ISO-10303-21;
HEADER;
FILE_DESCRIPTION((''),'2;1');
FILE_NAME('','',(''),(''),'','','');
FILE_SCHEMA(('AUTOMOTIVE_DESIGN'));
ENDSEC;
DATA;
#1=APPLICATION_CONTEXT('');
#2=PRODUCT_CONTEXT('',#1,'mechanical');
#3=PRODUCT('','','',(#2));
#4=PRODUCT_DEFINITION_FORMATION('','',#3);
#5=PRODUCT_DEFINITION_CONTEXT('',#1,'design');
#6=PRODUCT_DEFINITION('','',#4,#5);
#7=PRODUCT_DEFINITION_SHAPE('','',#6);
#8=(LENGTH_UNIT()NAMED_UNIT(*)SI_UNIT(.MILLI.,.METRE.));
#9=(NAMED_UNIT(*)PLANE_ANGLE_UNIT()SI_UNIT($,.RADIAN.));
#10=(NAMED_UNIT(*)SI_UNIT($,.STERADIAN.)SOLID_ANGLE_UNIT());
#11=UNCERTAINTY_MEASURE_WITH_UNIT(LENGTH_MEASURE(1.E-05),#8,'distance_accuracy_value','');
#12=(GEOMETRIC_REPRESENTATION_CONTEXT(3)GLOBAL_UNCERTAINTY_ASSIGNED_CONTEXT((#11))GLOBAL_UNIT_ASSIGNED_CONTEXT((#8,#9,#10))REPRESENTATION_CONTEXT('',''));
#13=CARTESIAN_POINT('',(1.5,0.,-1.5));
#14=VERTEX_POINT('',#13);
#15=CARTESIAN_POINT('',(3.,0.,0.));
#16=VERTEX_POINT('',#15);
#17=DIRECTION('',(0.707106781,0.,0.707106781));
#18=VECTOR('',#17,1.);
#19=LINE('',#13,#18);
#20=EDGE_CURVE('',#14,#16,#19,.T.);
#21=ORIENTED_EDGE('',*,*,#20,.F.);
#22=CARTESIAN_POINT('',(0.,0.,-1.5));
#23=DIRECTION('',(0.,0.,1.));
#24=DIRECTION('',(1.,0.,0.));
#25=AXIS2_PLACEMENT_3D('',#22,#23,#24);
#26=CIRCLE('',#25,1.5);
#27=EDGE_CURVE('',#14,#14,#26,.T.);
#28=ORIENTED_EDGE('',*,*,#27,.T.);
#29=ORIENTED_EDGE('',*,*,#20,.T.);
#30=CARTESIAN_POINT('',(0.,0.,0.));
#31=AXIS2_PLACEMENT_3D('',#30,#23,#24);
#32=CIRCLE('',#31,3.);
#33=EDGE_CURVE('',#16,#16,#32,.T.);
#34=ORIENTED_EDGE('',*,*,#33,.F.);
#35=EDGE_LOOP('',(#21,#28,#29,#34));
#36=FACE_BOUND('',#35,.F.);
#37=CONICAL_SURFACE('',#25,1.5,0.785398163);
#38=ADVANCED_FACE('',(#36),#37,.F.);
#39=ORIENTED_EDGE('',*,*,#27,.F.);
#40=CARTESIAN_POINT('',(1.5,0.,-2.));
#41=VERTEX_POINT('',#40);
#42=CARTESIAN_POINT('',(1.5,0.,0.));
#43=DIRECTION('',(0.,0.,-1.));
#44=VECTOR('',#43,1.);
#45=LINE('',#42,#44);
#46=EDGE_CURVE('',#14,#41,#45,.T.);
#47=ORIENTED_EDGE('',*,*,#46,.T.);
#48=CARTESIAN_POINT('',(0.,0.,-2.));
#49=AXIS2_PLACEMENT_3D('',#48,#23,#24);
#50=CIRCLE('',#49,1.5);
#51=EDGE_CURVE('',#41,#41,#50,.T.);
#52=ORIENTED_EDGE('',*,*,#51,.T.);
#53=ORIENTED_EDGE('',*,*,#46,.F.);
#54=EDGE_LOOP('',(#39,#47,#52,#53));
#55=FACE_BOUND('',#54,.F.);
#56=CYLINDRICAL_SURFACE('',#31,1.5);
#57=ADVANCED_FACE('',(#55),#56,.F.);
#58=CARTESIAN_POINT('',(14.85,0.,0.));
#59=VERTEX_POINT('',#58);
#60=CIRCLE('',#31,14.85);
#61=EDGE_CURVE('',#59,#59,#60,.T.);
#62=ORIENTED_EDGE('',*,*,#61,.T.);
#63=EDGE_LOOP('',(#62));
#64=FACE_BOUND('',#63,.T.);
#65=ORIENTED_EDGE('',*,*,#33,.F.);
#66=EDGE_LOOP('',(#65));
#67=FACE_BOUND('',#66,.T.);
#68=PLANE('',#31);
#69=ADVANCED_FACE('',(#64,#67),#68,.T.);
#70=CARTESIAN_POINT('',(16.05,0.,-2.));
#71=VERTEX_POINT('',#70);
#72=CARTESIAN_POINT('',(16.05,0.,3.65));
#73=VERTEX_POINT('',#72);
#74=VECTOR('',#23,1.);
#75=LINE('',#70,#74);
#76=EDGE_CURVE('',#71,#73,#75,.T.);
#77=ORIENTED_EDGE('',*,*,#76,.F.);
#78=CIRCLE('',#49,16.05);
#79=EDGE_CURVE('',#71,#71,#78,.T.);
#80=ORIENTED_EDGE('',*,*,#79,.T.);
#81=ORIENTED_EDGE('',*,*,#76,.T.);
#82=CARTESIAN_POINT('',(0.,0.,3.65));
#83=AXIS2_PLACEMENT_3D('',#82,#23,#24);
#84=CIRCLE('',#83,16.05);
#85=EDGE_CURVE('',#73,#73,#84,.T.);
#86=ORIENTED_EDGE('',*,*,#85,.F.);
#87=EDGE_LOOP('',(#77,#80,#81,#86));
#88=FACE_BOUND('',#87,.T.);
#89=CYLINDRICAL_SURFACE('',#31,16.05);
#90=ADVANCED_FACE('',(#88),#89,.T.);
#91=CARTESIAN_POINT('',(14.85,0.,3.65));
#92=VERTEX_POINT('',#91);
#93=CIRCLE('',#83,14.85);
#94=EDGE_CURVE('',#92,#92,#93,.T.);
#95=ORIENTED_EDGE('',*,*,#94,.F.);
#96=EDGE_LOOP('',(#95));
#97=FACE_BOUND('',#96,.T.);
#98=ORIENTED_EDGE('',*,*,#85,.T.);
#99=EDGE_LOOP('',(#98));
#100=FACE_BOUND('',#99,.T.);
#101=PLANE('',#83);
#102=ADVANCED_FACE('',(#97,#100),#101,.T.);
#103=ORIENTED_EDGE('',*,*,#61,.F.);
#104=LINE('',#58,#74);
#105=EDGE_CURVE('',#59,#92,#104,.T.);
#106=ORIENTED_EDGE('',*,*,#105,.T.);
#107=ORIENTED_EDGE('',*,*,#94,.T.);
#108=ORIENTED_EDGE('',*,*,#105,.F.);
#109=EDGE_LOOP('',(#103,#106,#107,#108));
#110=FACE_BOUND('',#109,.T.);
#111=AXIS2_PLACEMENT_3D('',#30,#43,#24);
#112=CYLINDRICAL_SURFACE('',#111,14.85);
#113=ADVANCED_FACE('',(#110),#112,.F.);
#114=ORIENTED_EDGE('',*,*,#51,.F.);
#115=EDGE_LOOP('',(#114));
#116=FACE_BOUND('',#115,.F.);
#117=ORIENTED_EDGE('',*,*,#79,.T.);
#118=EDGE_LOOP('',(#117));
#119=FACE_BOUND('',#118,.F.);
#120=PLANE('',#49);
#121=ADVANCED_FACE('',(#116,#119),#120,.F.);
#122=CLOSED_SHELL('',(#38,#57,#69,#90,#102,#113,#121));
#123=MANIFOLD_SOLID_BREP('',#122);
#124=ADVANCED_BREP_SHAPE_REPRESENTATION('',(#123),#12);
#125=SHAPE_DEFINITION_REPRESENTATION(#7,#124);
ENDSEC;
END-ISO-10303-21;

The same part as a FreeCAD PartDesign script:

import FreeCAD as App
import Part
import Sketcher
Q = App.Units.Quantity


def edges_at(feature, points):
    """Names of the edges that pass closest to the given points."""
    edges = feature.Shape.Edges
    near = lambda p: min(range(len(edges)), key=lambda i: edges[i].distToShape(Part.Vertex(*p))[0])
    return sorted({f"Edge{near(p) + 1}" for p in points})

doc = App.newDocument("Part")
body = doc.addObject("PartDesign::Body", "Body")

sketch1 = body.newObject("Sketcher::SketchObject", "Sketch")
sketch1.AttachmentSupport = (doc.getObject("XY_Plane"), [""])
sketch1.MapMode = "FlatFace"
sketch1.addGeometry([
    Part.Circle(App.Vector(0, 0, 0), App.Vector(0, 0, 1), 16.1),
    Part.Circle(App.Vector(0, 0, 0), App.Vector(0, 0, 1), 1.5),
], False)
sketch1.addConstraint([
    Sketcher.Constraint("Coincident", 0, 3, -1, 1),
    Sketcher.Constraint("Coincident", 1, 3, -1, 1),
    Sketcher.Constraint("Diameter", 1, Q("3 mm")),
    Sketcher.Constraint("Diameter", 0, Q("32.1 mm")),
])
pad1 = body.newObject("PartDesign::Pad", "Pad")
pad1.Profile = sketch1
pad1.Length = 2
pad1.Reversed = True

sketch2 = body.newObject("Sketcher::SketchObject", "Sketch001")
sketch2.AttachmentSupport = (doc.getObject("XY_Plane"), [""])
sketch2.MapMode = "FlatFace"
sketch2.addGeometry([
    Part.Circle(App.Vector(0, 0, 0), App.Vector(0, 0, 1), 16),
    Part.Circle(App.Vector(0, 0, 0), App.Vector(0, 0, 1), 15),
], False)
sketch2.addConstraint([
    Sketcher.Constraint("Coincident", 0, 3, -1, 1),
    Sketcher.Constraint("Coincident", 1, 3, -1, 1),
    Sketcher.Constraint("Diameter", 0, Q("32.1 mm")),
    Sketcher.Constraint("Diameter", 1, Q("29.7 mm")),
])
pad2 = body.newObject("PartDesign::Pad", "Pad001")
pad2.Profile = sketch2
pad2.Length = 3.65
doc.recompute()

chamfer = body.newObject("PartDesign::Chamfer", "Chamfer")
chamfer.Base = (pad2, edges_at(pad2, [(-1.5, 0, 0)]))
chamfer.Size = 1.5

doc.recompute()
